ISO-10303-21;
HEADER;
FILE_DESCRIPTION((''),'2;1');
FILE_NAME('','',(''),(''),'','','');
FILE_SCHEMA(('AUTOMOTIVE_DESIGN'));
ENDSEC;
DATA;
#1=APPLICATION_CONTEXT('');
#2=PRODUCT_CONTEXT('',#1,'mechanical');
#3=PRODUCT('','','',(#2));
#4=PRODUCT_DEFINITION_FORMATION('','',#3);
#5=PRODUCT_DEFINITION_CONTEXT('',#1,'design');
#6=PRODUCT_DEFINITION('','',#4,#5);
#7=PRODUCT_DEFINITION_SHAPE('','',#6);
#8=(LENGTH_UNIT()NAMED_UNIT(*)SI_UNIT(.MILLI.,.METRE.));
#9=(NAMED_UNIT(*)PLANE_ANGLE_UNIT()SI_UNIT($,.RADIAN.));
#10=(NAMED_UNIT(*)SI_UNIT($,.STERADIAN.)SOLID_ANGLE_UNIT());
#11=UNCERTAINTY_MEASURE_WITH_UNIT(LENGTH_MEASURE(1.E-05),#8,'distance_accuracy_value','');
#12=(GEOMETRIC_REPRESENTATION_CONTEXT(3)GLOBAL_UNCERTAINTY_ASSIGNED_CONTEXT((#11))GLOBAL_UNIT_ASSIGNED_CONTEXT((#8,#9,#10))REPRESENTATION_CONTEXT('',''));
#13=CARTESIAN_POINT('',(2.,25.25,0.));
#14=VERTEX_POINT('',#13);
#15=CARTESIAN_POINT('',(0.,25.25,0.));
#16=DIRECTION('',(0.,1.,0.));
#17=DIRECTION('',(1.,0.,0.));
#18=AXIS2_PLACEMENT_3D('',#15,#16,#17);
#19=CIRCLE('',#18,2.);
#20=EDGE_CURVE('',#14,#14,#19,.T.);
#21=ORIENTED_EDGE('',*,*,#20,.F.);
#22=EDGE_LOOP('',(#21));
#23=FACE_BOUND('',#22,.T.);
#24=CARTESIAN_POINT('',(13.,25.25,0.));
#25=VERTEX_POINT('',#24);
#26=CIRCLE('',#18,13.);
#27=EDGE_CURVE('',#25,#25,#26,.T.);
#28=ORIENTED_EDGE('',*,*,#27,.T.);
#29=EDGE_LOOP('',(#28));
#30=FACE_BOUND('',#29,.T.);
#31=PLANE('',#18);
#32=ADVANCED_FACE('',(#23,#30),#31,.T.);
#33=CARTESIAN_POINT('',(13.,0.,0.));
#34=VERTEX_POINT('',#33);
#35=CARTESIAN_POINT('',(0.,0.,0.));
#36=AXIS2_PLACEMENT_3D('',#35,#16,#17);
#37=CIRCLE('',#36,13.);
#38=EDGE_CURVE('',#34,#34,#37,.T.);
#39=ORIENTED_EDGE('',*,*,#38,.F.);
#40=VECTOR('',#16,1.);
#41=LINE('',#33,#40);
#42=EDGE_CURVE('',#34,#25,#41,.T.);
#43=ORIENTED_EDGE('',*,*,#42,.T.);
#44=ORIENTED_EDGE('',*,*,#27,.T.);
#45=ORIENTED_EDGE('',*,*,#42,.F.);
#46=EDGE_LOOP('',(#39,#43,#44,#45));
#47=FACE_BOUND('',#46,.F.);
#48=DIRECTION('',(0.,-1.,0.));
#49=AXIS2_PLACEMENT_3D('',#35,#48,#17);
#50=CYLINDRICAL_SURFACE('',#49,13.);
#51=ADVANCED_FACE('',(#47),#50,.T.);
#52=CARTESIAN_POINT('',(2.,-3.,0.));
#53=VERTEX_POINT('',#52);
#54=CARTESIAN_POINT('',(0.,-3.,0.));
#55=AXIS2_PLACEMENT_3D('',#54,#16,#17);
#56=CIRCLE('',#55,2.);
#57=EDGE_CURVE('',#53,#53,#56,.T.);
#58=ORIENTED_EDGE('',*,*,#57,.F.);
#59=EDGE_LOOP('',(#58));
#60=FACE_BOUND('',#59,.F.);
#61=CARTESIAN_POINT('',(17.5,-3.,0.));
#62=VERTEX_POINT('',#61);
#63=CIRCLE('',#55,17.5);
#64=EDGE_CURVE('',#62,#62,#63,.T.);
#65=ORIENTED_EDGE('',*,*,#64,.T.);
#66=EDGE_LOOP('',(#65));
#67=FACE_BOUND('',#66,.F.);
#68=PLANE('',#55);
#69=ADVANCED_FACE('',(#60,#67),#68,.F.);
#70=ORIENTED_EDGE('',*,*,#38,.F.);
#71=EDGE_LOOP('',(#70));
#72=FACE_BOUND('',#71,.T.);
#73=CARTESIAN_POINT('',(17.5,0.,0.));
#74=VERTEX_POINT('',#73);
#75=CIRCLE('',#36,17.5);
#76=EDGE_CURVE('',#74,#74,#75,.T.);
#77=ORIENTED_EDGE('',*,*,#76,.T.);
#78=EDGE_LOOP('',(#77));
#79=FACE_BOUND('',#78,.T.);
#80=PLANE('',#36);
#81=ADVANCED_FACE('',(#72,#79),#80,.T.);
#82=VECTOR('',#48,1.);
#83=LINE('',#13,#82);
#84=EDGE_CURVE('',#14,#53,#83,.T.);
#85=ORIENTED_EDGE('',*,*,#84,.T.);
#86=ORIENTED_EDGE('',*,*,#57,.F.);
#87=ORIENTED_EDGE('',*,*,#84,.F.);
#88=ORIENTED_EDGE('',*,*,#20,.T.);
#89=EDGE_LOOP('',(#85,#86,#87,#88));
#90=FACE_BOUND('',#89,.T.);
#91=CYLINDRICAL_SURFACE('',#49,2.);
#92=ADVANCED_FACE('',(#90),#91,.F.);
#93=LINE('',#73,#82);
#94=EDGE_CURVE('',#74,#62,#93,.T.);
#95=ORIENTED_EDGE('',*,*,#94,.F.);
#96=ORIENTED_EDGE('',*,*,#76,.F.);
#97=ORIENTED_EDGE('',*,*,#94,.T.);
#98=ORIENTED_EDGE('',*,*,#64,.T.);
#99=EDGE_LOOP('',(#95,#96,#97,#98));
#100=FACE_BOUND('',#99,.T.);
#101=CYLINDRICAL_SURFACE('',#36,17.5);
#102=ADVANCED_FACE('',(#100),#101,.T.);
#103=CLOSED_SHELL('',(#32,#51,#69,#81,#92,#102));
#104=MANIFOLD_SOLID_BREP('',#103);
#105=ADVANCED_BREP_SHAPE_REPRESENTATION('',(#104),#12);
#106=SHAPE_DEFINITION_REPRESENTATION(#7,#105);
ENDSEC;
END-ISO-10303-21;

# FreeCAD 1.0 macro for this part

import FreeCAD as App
import Part
import Sketcher

V = App.Vector
Q = App.Units.Quantity

doc = App.newDocument("Part")
body = doc.addObject("PartDesign::Body", "Body")

# Sketch on XZ plane
sketch1 = body.newObject("Sketcher::SketchObject", "Sketch")
sketch1.AttachmentSupport = (doc.getObject("XZ_Plane"), [""])
sketch1.MapMode = "FlatFace"
sketch1.addGeometry(Part.Circle(V(0, 0, 0), V(0, 0, 1), 13), False)
sketch1.addGeometry(Part.Circle(V(0, 0, 0), V(0, 0, 1), 2), False)
sketch1.addConstraint(Sketcher.Constraint("Coincident", 0, 3, -1, 1))
sketch1.addConstraint(Sketcher.Constraint("Coincident", 1, 3, -1, 1))
sketch1.addConstraint(Sketcher.Constraint("Diameter", 0, Q("26 mm")))
sketch1.addConstraint(Sketcher.Constraint("Diameter", 1, Q("4 mm")))
pad1 = body.newObject("PartDesign::Pad", "Pad")
pad1.Profile = sketch1
pad1.Length = 25.25
pad1.Reversed = True

# Sketch on XZ plane
sketch2 = body.newObject("Sketcher::SketchObject", "Sketch001")
sketch2.AttachmentSupport = (doc.getObject("XZ_Plane"), [""])
sketch2.MapMode = "FlatFace"
sketch2.addGeometry(Part.Circle(V(0, 0, 0), V(0, 0, 1), 17.5), False)
sketch2.addGeometry(Part.Circle(V(0, 0, 0), V(0, 0, 1), 2), False)
sketch2.addConstraint(Sketcher.Constraint("Coincident", 0, 3, -1, 1))
sketch2.addConstraint(Sketcher.Constraint("Coincident", 1, 3, -1, 1))
sketch2.addConstraint(Sketcher.Constraint("Diameter", 0, Q("35 mm")))
sketch2.addConstraint(Sketcher.Constraint("Diameter", 1, Q("4 mm")))
pad2 = body.newObject("PartDesign::Pad", "Pad001")
pad2.Profile = sketch2
pad2.Length = 3

doc.recompute()
